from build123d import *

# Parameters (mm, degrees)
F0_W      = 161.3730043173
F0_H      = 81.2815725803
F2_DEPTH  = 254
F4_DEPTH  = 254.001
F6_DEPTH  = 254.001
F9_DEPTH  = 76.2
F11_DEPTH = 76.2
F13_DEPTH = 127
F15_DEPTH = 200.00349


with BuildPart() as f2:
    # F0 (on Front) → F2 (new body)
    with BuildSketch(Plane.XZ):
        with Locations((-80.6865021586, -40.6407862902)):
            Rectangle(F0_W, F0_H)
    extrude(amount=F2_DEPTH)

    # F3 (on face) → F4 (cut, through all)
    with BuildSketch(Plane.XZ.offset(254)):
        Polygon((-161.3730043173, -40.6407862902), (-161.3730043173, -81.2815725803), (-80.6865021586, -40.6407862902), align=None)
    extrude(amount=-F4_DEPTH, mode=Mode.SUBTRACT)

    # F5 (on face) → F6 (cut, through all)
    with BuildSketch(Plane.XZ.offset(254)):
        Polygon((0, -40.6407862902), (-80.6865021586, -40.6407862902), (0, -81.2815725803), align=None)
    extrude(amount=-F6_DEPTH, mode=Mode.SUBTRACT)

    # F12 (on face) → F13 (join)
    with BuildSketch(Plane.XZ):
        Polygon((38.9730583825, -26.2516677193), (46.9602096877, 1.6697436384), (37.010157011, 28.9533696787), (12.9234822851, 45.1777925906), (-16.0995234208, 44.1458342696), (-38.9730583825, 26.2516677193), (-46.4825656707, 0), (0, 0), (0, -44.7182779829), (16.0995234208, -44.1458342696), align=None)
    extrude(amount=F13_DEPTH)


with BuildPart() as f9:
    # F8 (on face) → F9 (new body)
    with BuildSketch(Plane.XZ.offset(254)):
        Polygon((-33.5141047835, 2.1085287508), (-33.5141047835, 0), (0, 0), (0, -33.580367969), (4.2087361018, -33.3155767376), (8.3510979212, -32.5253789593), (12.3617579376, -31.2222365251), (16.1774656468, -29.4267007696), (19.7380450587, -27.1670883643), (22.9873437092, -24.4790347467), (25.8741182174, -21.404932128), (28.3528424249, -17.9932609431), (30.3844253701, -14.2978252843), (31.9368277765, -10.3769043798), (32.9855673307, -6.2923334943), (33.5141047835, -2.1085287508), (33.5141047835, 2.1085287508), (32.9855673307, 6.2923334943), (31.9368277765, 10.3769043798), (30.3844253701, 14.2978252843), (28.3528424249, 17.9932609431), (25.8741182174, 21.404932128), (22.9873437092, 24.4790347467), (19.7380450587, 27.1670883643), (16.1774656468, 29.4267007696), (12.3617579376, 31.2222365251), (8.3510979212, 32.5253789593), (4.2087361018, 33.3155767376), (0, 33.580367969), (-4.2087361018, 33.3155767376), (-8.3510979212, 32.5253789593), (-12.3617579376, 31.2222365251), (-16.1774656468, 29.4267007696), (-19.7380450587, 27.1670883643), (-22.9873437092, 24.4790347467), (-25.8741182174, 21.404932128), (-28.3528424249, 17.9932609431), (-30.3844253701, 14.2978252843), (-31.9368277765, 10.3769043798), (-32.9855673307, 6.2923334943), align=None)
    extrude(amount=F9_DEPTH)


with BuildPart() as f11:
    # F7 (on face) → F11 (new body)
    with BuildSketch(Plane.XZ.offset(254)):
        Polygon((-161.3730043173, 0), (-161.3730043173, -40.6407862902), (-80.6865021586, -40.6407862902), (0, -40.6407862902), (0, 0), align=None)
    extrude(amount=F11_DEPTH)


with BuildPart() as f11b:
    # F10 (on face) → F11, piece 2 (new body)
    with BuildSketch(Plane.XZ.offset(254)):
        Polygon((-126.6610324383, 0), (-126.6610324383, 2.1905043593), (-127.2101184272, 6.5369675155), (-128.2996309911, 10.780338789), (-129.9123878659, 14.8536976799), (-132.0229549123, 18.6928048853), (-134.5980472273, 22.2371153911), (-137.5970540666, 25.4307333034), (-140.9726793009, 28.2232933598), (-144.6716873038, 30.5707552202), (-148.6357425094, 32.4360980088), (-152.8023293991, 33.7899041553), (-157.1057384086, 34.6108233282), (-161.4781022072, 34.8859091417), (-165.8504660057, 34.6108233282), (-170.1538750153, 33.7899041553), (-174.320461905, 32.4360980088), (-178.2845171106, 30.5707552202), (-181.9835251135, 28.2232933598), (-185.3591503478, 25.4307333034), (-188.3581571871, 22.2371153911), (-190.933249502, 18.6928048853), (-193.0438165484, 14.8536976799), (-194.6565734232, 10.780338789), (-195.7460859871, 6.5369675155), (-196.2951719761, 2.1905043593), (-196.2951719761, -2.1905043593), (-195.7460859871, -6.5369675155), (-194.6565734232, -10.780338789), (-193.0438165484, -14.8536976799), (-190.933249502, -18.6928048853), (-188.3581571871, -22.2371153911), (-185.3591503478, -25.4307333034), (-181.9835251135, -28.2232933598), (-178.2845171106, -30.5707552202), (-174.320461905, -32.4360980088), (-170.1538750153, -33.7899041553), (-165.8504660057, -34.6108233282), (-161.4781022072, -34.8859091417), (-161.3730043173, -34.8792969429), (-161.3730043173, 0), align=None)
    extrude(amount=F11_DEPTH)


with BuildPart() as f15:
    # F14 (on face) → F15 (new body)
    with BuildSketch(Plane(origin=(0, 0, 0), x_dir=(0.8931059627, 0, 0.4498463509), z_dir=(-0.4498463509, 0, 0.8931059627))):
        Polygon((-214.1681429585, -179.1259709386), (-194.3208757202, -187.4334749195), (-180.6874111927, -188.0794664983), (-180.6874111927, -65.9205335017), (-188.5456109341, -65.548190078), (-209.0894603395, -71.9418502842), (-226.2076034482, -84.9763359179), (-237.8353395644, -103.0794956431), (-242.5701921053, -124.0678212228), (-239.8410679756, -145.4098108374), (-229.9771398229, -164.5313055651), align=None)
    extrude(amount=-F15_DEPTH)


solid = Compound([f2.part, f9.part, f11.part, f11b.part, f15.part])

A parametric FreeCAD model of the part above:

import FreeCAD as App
import Part
import Sketcher
Q = App.Units.Quantity


def add_polygon(sketch, points):
    """Adds a closed chain of lines whose ends are joined by coincident constraints."""
    first, n = sketch.GeometryCount, len(points)
    for a, b in zip(points, points[1:] + points[:1]):
        sketch.addGeometry(Part.LineSegment(App.Vector(*a, 0), App.Vector(*b, 0)), False)
    for i in range(n):
        sketch.addConstraint(Sketcher.Constraint("Coincident", first + i, 2, first + (i + 1) % n, 1))

doc = App.newDocument("Part")
body = doc.addObject("PartDesign::Body", "Body")
body.AllowCompound = True

# Sketch on XZ plane
sketch1 = body.newObject("Sketcher::SketchObject", "Sketch")
sketch1.AttachmentSupport = (doc.getObject("XZ_Plane"), [""])
sketch1.MapMode = "FlatFace"
add_polygon(sketch1, [(-161, 0), (-161, -81), (0, -81), (0, 0)])  # lines 0-3
sketch1.addConstraint([
    Sketcher.Constraint("Vertical", 0),
    Sketcher.Constraint("Horizontal", 1),
    Sketcher.Constraint("Vertical", 2),
    Sketcher.Constraint("Horizontal", 3),
    Sketcher.Constraint("Coincident", 2, 2, -1, 1),
    Sketcher.Constraint("DistanceX", 1, 1, 1, 2, Q("161.373004 mm")),
    Sketcher.Constraint("DistanceY", 0, 2, 0, 1, Q("81.281573 mm")),
])
pad1 = body.newObject("PartDesign::Pad", "Pad")
pad1.Profile = sketch1
pad1.Length = Q("10 in")

# Sketch on XZ plane
sketch2 = body.newObject("Sketcher::SketchObject", "Sketch001")
sketch2.AttachmentSupport = (doc.getObject("XZ_Plane"), [""])
sketch2.MapMode = "FlatFace"
sketch2.AttachmentOffset = App.Placement(App.Vector(0, 0, 10 * 25.4), App.Rotation())
add_polygon(sketch2, [(-161, -41), (-161, -81), (-81, -41)])  # lines 0-2
sketch2.addConstraint([
    Sketcher.Constraint("Vertical", 0),
    Sketcher.Constraint("Horizontal", 2),
    Sketcher.Constraint("DistanceX", 2, 2, 2, 1, Q("80.686502 mm")),
    Sketcher.Constraint("DistanceY", 0, 2, 0, 1, Q("40.640786 mm")),
    Sketcher.Constraint("DistanceX", 0, 2, -1, 1, Q("161.373004 mm")),
    Sketcher.Constraint("DistanceY", 0, 2, -1, 1, Q("81.281573 mm")),
])
pocket1 = body.newObject("PartDesign::Pocket", "Pocket")
pocket1.Profile = sketch2
pocket1.Type = "ThroughAll"

# Sketch on XZ plane
sketch3 = body.newObject("Sketcher::SketchObject", "Sketch002")
sketch3.AttachmentSupport = (doc.getObject("XZ_Plane"), [""])
sketch3.MapMode = "FlatFace"
sketch3.AttachmentOffset = App.Placement(App.Vector(0, 0, 10 * 25.4), App.Rotation())
add_polygon(sketch3, [(0, -41), (-81, -41), (0, -81)])  # lines 0-2
sketch3.addConstraint([
    Sketcher.Constraint("Horizontal", 0),
    Sketcher.Constraint("Vertical", 2),
    Sketcher.Constraint("PointOnObject", 1, 2, -2),
    Sketcher.Constraint("DistanceX", 0, 2, 0, 1, Q("80.686502 mm")),
    Sketcher.Constraint("DistanceY", 2, 1, 2, 2, Q("40.640786 mm")),
    Sketcher.Constraint("DistanceY", 0, 2, -1, 1, Q("40.640786 mm")),
])
pocket2 = body.newObject("PartDesign::Pocket", "Pocket001")
pocket2.Profile = sketch3
pocket2.Type = "ThroughAll"

# Sketch on XZ plane
sketch4 = body.newObject("Sketcher::SketchObject", "Sketch003")
sketch4.AttachmentSupport = (doc.getObject("XZ_Plane"), [""])
sketch4.MapMode = "FlatFace"
add_polygon(sketch4, [(39, -26), (47, 2), (37, 29), (13, 45), (-16, 44), (-39, 26), (-46, 0), (0, 0), (0, -45), (16, -44)])  # lines 0-9
sketch4.addConstraint([
    Sketcher.Constraint("Horizontal", 6),
    Sketcher.Constraint("Vertical", 7),
    Sketcher.Constraint("Coincident", 6, 2, -1, 1),
    Sketcher.Constraint("Symmetric", 3, 2, 8, 2, -1, 1),
    Sketcher.Constraint("Symmetric", 4, 2, 9, 2, -1, 1),
    Sketcher.Constraint("Parallel", 0, 5),
    Sketcher.Constraint("Parallel", 3, 8),
    Sketcher.Constraint("Equal", 0, 1),
    Sketcher.Constraint("Equal", 1, 2),
    Sketcher.Constraint("Equal", 2, 3),
    Sketcher.Constraint("Equal", 3, 4),
    Sketcher.Constraint("DistanceY", 7, 2, 0, 2, Q("1.8263001 in")),
    Sketcher.Constraint("DistanceY", 4, 2, 1, 2, Q("2.701702 mm")),
    Sketcher.Constraint("DistanceX", 1, 2, 9, 2, Q("1.962901 mm")),
    Sketcher.Constraint("Distance", 5, Q("27.304629 mm")),
    Sketcher.Constraint("DistanceX", 6, 1, 6, 2, Q("46.482566 mm")),
    Sketcher.Constraint("DistanceX", -1, 1, 0, 2, Q("46.96021 mm")),
])
pad2 = body.newObject("PartDesign::Pad", "Pad001")
pad2.Profile = sketch4
pad2.Length = Q("5 in")
body2 = doc.addObject("PartDesign::Body", "Body001")

# Sketch on XZ plane
sketch5 = body2.newObject("Sketcher::SketchObject", "Sketch004")
sketch5.AttachmentSupport = (doc.getObject("XZ_Plane001"), [""])
sketch5.MapMode = "FlatFace"
sketch5.AttachmentOffset = App.Placement(App.Vector(0, 0, 10 * 25.4), App.Rotation())
add_polygon(sketch5, [(-33.5, 2.1), (-33.5, 0), (0, 0), (0, -33.6), (4.2, -33.3), (8.4, -32.5), (12.4, -31.2), (16.2, -29.4), (19.7, -27.2), (23, -24.5), (25.9, -21.4), (28.4, -18), (30.4, -14.3), (31.9, -10.4), (33, -6.3), (33.5, -2.1), (33.5, 2.1), (33, 6.3), (31.9, 10.4), (30.4, 14.3), (28.4, 18), (25.9, 21.4), (23, 24.5), (19.7, 27.2), (16.2, 29.4), (12.4, 31.2), (8.4, 32.5), (4.2, 33.3), (0, 33.6), (-4.2, 33.3), (-8.4, 32.5), (-12.4, 31.2), (-16.2, 29.4), (-19.7, 27.2), (-23, 24.5), (-25.9, 21.4), (-28.4, 18), (-30.4, 14.3), (-31.9, 10.4), (-33, 6.3)])  # lines 0-39
sketch5.addConstraint([
    Sketcher.Constraint("Vertical", 0),
    Sketcher.Constraint("Horizontal", 1),
    Sketcher.Constraint("Vertical", 2),
    Sketcher.Constraint("Vertical", 15),
    Sketcher.Constraint("Coincident", 1, 2, -1, 1),
    Sketcher.Constraint("Symmetric", 2, 2, 27, 2, -1, 1),
    Sketcher.Constraint("Symmetric", 3, 2, 28, 2, -1, 1),
    Sketcher.Constraint("Symmetric", 4, 2, 29, 2, -1, 1),
    Sketcher.Constraint("Symmetric", 5, 2, 30, 2, -1, 1),
    Sketcher.Constraint("Symmetric", 6, 2, 31, 2, -1, 1),
    Sketcher.Constraint("Symmetric", 7, 2, 32, 2, -1, 1),
    Sketcher.Constraint("Symmetric", 8, 2, 33, 2, -1, 1),
    Sketcher.Constraint("Symmetric", 9, 2, 34, 2, -1, 1),
    Sketcher.Constraint("Symmetric", 10, 2, 35, 2, -1, 1),
    Sketcher.Constraint("Symmetric", 11, 2, 36, 2, -1, 1),
    Sketcher.Constraint("Symmetric", 12, 2, 37, 2, -1, 1),
    Sketcher.Constraint("Symmetric", 13, 2, 38, 2, -1, 1),
    Sketcher.Constraint("Symmetric", 14, 2, 39, 2, -1, 1),
    Sketcher.Constraint("Symmetric", 26, 2, 28, 2, -2),
    Sketcher.Constraint("Symmetric", 25, 2, 29, 2, -2),
    Sketcher.Constraint("Symmetric", 24, 2, 30, 2, -2),
    Sketcher.Constraint("Symmetric", 23, 2, 31, 2, -2),
    Sketcher.Constraint("Symmetric", 22, 2, 32, 2, -2),
    Sketcher.Constraint("Symmetric", 21, 2, 33, 2, -2),
    Sketcher.Constraint("Symmetric", 20, 2, 34, 2, -2),
    Sketcher.Constraint("Symmetric", 19, 2, 35, 2, -2),
    Sketcher.Constraint("Symmetric", 18, 2, 36, 2, -2),
    Sketcher.Constraint("Symmetric", 17, 2, 37, 2, -2),
    Sketcher.Constraint("Symmetric", 16, 2, 38, 2, -2),
    Sketcher.Constraint("Horizontal", 15, 2, 39, 2),
    Sketcher.Constraint("Equal", 3, 4),
    Sketcher.Constraint("Equal", 4, 5),
    Sketcher.Constraint("Equal", 5, 6),
    Sketcher.Constraint("Equal", 6, 7),
    Sketcher.Constraint("Equal", 7, 8),
    Sketcher.Constraint("Equal", 8, 9),
    Sketcher.Constraint("Equal", 9, 10),
    Sketcher.Constraint("Equal", 10, 11),
    Sketcher.Constraint("Equal", 11, 12),
    Sketcher.Constraint("Equal", 12, 13),
    Sketcher.Constraint("Equal", 13, 14),
    Sketcher.Constraint("Angle", 5, Q("18 deg")),
    Sketcher.Constraint("Angle", 10, Q("54 deg")),
    Sketcher.Constraint("Angle", 3, Q("3.6 deg")),
    Sketcher.Constraint("Angle", 4, Q("10.8 deg")),
    Sketcher.Constraint("Angle", 6, Q("25.2 deg")),
    Sketcher.Constraint("Angle", 7, Q("32.4 deg")),
    Sketcher.Constraint("Angle", 8, Q("39.6 deg")),
    Sketcher.Constraint("Angle", 9, Q("46.8 deg")),
    Sketcher.Constraint("Angle", 11, Q("61.2 deg")),
    Sketcher.Constraint("Angle", 12, Q("68.4 deg")),
    Sketcher.Constraint("Angle", 13, Q("75.6 deg")),
    Sketcher.Constraint("Angle", 14, Q("82.8 deg")),
    Sketcher.Constraint("DistanceX", 4, 2, 5, 2, Q("0.1579 in")),
    Sketcher.Constraint("DistanceY", 0, 2, 0, 1, Q("2.108529 mm")),
])
pad3 = body2.newObject("PartDesign::Pad", "Pad002")
pad3.Profile = sketch5
pad3.Length = Q("3 in")
body3 = doc.addObject("PartDesign::Body", "Body002")

# Sketch on XZ plane
sketch6 = body3.newObject("Sketcher::SketchObject", "Sketch005")
sketch6.AttachmentSupport = (doc.getObject("XZ_Plane002"), [""])
sketch6.MapMode = "FlatFace"
sketch6.AttachmentOffset = App.Placement(App.Vector(0, 0, 10 * 25.4), App.Rotation())
add_polygon(sketch6, [(-161, 0), (-161, -41), (0, -41), (0, 0)])  # lines 0-3
sketch6.addConstraint([
    Sketcher.Constraint("Vertical", 0),
    Sketcher.Constraint("Horizontal", 1),
    Sketcher.Constraint("Vertical", 2),
    Sketcher.Constraint("Horizontal", 3),
    Sketcher.Constraint("Coincident", 2, 2, -1, 1),
    Sketcher.Constraint("DistanceX", 1, 1, 1, 2, Q("161.373004 mm")),
    Sketcher.Constraint("DistanceY", 0, 2, 0, 1, Q("40.640786 mm")),
])
pad4 = body3.newObject("PartDesign::Pad", "Pad003")
pad4.Profile = sketch6
pad4.Length = Q("3 in")
body4 = doc.addObject("PartDesign::Body", "Body003")

# Sketch on XZ plane
sketch7 = body4.newObject("Sketcher::SketchObject", "Sketch006")
sketch7.AttachmentSupport = (doc.getObject("XZ_Plane003"), [""])
sketch7.MapMode = "FlatFace"
sketch7.AttachmentOffset = App.Placement(App.Vector(0, 0, 10 * 25.4), App.Rotation())
add_polygon(sketch7, [(-126.66, 0), (-126.66, 2.19), (-127.21, 6.54), (-128.3, 10.78), (-129.91, 14.85), (-132.02, 18.69), (-134.6, 22.24), (-137.6, 25.43), (-140.97, 28.22), (-144.67, 30.57), (-148.64, 32.44), (-152.8, 33.79), (-157.11, 34.61), (-161.48, 34.89), (-165.85, 34.61), (-170.15, 33.79), (-174.32, 32.44), (-178.28, 30.57), (-181.98, 28.22), (-185.36, 25.43), (-188.36, 22.24), (-190.93, 18.69), (-193.04, 14.85), (-194.66, 10.78), (-195.75, 6.54), (-196.3, 2.19), (-196.3, -2.19), (-195.75, -6.54), (-194.66, -10.78), (-193.04, -14.85), (-190.93, -18.69), (-188.36, -22.24), (-185.36, -25.43), (-181.98, -28.22), (-178.28, -30.57), (-174.32, -32.44), (-170.15, -33.79), (-165.85, -34.61), (-161.48, -34.89), (-161.37, -34.88), (-161.37, 0)])  # lines 0-40
sketch7.addConstraint([
    Sketcher.Constraint("Vertical", 0),
    Sketcher.Constraint("Vertical", 25),
    Sketcher.Constraint("Vertical", 39),
    Sketcher.Constraint("Horizontal", 40),
    Sketcher.Constraint("Symmetric", 23, 2, 26, 2, -1),
    Sketcher.Constraint("Symmetric", 22, 2, 27, 2, -1),
    Sketcher.Constraint("Symmetric", 21, 2, 28, 2, -1),
    Sketcher.Constraint("Symmetric", 20, 2, 29, 2, -1),
    Sketcher.Constraint("Symmetric", 19, 2, 30, 2, -1),
    Sketcher.Constraint("Symmetric", 18, 2, 31, 2, -1),
    Sketcher.Constraint("Symmetric", 17, 2, 32, 2, -1),
    Sketcher.Constraint("Symmetric", 16, 2, 33, 2, -1),
    Sketcher.Constraint("Symmetric", 15, 2, 34, 2, -1),
    Sketcher.Constraint("Symmetric", 14, 2, 35, 2, -1),
    Sketcher.Constraint("Symmetric", 13, 2, 36, 2, -1),
    Sketcher.Constraint("Symmetric", 12, 2, 37, 2, -1),
    Sketcher.Constraint("PointOnObject", 39, 2, -1),
    Sketcher.Constraint("Parallel", 1, 26),
    Sketcher.Constraint("Parallel", 2, 27),
    Sketcher.Constraint("Parallel", 3, 28),
    Sketcher.Constraint("Parallel", 4, 29),
    Sketcher.Constraint("Parallel", 5, 30),
    Sketcher.Constraint("Parallel", 6, 31),
    Sketcher.Constraint("Parallel", 7, 32),
    Sketcher.Constraint("Parallel", 8, 33),
    Sketcher.Constraint("Parallel", 9, 34),
    Sketcher.Constraint("Parallel", 10, 35),
    Sketcher.Constraint("Parallel", 11, 36),
    Sketcher.Constraint("Parallel", 12, 37),
    Sketcher.Constraint("Parallel", 13, 38),
    Sketcher.Constraint("Horizontal", 11, 2, 13, 2),
    Sketcher.Constraint("Horizontal", 10, 2, 14, 2),
    Sketcher.Constraint("Horizontal", 9, 2, 15, 2),
    Sketcher.Constraint("Horizontal", 8, 2, 16, 2),
    Sketcher.Constraint("Horizontal", 7, 2, 17, 2),
    Sketcher.Constraint("Horizontal", 6, 2, 18, 2),
    Sketcher.Constraint("Horizontal", 5, 2, 19, 2),
    Sketcher.Constraint("Horizontal", 4, 2, 20, 2),
    Sketcher.Constraint("Horizontal", 3, 2, 21, 2),
    Sketcher.Constraint("Horizontal", 2, 2, 22, 2),
    Sketcher.Constraint("Horizontal", 1, 2, 23, 2),
    Sketcher.Constraint("Horizontal", 0, 2, 24, 2),
    Sketcher.Constraint("Equal", 1, 2),
    Sketcher.Constraint("Equal", 2, 3),
    Sketcher.Constraint("Equal", 3, 4),
    Sketcher.Constraint("Equal", 4, 5),
    Sketcher.Constraint("Equal", 5, 6),
    Sketcher.Constraint("Equal", 6, 7),
    Sketcher.Constraint("Equal", 7, 8),
    Sketcher.Constraint("Equal", 8, 9),
    Sketcher.Constraint("Equal", 9, 10),
    Sketcher.Constraint("Equal", 10, 11),
    Sketcher.Constraint("Equal", 11, 12),
    Sketcher.Constraint("Equal", 23, 24),
    Sketcher.Constraint("Angle", 5, Q("126 deg")),
    Sketcher.Constraint("Angle", 10, Q("162 deg")),
    Sketcher.Constraint("Angle", 1, Q("97.2 deg")),
    Sketcher.Constraint("Angle", 2, Q("104.4 deg")),
    Sketcher.Constraint("Angle", 3, Q("111.6 deg")),
    Sketcher.Constraint("Angle", 4, Q("118.8 deg")),
    Sketcher.Constraint("Angle", 6, Q("133.2 deg")),
    Sketcher.Constraint("Angle", 7, Q("140.4 deg")),
    Sketcher.Constraint("Angle", 8, Q("147.6 deg")),
    Sketcher.Constraint("Angle", 9, Q("154.8 deg")),
    Sketcher.Constraint("Angle", 11, Q("169.2 deg")),
    Sketcher.Constraint("Angle", 12, Q("176.4 deg")),
    Sketcher.Constraint("DistanceX", 8, 2, 5, 2, Q("0.3966 in")),
    Sketcher.Constraint("DistanceX", 40, 1, 40, 2, Q("34.711972 mm")),
    Sketcher.Constraint("DistanceY", 25, 2, 25, 1, Q("4.381009 mm")),
    Sketcher.Constraint("DistanceX", 1, 2, -1, 1, Q("127.210118 mm")),
])
pad5 = body4.newObject("PartDesign::Pad", "Pad004")
pad5.Profile = sketch7
pad5.Length = Q("3 in")
body5 = doc.addObject("PartDesign::Body", "Body004")

# Sketch on an angled plane
sketch8 = body5.newObject("Sketcher::SketchObject", "Sketch007")
sketch8.Placement = App.Placement(App.Vector(0, 0, 0), App.Rotation(App.Vector(0.893105963, 0, 0.449846351), App.Vector(0, 1.000000001, 0), App.Vector(-0.449846351, 0, 0.893105963), "ZXY"))
add_polygon(sketch8, [(-214, -179), (-194, -187), (-181, -188), (-181, -66), (-189, -66), (-209, -72), (-226, -85), (-238, -103), (-243, -124), (-240, -145), (-230, -165)])  # lines 0-10
sketch8.addConstraint([
    Sketcher.Constraint("Vertical", 2),
    Sketcher.Constraint("Parallel", 1, 3),
    Sketcher.Constraint("Equal", 0, 4),
    Sketcher.Constraint("Equal", 4, 5),
    Sketcher.Constraint("Equal", 5, 6),
    Sketcher.Constraint("Equal", 6, 7),
    Sketcher.Constraint("Equal", 7, 8),
    Sketcher.Constraint("Equal", 8, 9),
    Sketcher.Constraint("Equal", 9, 10),
    Sketcher.Constraint("DistanceY", 1, 2, 10, 2, Q("0.3524998 in")),
    Sketcher.Constraint("DistanceX", 3, 2, 2, 2, Q("7.8582 mm")),
    Sketcher.Constraint("DistanceX", 6, 2, 9, 2, Q("7.8582 mm")),
    Sketcher.Constraint("Distance", 1, Q("13.64876 mm")),
    Sketcher.Constraint("DistanceY", 2, 1, 2, 2, Q("122.158933 mm")),
    Sketcher.Constraint("DistanceX", 1, 2, -1, 1, Q("180.687411 mm")),
    Sketcher.Constraint("DistanceY", 3, 2, -1, 1, Q("65.54819 mm")),
    Sketcher.Constraint("DistanceX", 4, 2, -1, 1, Q("209.08946 mm")),
    Sketcher.Constraint("DistanceY", 4, 2, -1, 1, Q("71.94185 mm")),
    Sketcher.Constraint("DistanceX", 6, 2, -1, 1, Q("237.83534 mm")),
    Sketcher.Constraint("DistanceY", 7, 2, -1, 1, Q("124.067821 mm")),
    Sketcher.Constraint("DistanceX", 8, 2, -1, 1, Q("239.841068 mm")),
    Sketcher.Constraint("DistanceY", 8, 2, -1, 1, Q("145.409811 mm")),
])
pad6 = body5.newObject("PartDesign::Pad", "Pad005")
pad6.Profile = sketch8
pad6.Length = 200.00349
pad6.Reversed = True

doc.recompute()
